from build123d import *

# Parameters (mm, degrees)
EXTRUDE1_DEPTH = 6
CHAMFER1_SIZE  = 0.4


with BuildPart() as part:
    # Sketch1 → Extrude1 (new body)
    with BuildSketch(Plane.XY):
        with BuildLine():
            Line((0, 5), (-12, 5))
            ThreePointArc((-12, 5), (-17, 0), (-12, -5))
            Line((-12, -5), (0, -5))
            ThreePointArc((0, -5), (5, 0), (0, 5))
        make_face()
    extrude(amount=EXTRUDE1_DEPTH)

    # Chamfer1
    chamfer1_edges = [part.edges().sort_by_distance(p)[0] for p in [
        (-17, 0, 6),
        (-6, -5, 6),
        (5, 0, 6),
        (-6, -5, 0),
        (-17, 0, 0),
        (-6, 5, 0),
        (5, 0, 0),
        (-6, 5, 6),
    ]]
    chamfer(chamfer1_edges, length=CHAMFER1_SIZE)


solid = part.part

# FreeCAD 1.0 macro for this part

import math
import FreeCAD as App
import Part
import Sketcher
from FreeCAD import Vector


def edges_at(feature, points):
    """Names of the edges that pass closest to the given points."""
    edges = feature.Shape.Edges
    near = lambda p: min(range(len(edges)), key=lambda i: edges[i].distToShape(Part.Vertex(*p))[0])
    return sorted({f"Edge{near(p) + 1}" for p in points})

doc = App.newDocument("Part")
body = doc.addObject("PartDesign::Body", "Body")

# Sketch on XY plane
sketch1 = body.newObject("Sketcher::SketchObject", "Sketch")
sketch1.AttachmentSupport = (doc.getObject("XY_Plane"), [""])
sketch1.MapMode = "FlatFace"
sketch1.addGeometry([
    Part.LineSegment(Vector(0, 5, 0), Vector(-12, 5, 0)),
    Part.ArcOfCircle(Part.Circle(Vector(-12, 0, 0), Vector(0, 0, 1), 5), math.radians(90), math.radians(270)),
    Part.LineSegment(Vector(-12, -5, 0), Vector(0, -5, 0)),
    Part.ArcOfCircle(Part.Circle(Vector(0, 0, 0), Vector(0, 0, 1), 5), math.radians(-90), math.radians(90)),
], False)
sketch1.addConstraint([
    Sketcher.Constraint("Tangent", 0, 2, 1, 1),
    Sketcher.Constraint("Tangent", 1, 2, 2, 1),
    Sketcher.Constraint("Tangent", 2, 2, 3, 1),
    Sketcher.Constraint("Tangent", 3, 2, 0, 1),
    Sketcher.Constraint("Horizontal", 0),
    Sketcher.Constraint("Horizontal", 2),
    Sketcher.Constraint("Coincident", 3, 3, -1, 1),
    Sketcher.Constraint("Radius", 1, 5.0),
    Sketcher.Constraint("DistanceX", 0, 2, 0, 1, 12.0),
])
pad1 = body.newObject("PartDesign::Pad", "Pad")
pad1.Profile = sketch1
pad1.Length = 6
doc.recompute()

chamfer = body.newObject("PartDesign::Chamfer", "Chamfer")
chamfer.Base = (pad1, edges_at(pad1, [
    (-17, 0, 6),
    (-6, -5, 6),
    (5, 0, 6),
    (-6, -5, 0),
    (-17, 0, 0),
    (-6, 5, 0),
    (5, 0, 0),
    (-6, 5, 6),
]))
chamfer.Size = 0.4

doc.recompute()
